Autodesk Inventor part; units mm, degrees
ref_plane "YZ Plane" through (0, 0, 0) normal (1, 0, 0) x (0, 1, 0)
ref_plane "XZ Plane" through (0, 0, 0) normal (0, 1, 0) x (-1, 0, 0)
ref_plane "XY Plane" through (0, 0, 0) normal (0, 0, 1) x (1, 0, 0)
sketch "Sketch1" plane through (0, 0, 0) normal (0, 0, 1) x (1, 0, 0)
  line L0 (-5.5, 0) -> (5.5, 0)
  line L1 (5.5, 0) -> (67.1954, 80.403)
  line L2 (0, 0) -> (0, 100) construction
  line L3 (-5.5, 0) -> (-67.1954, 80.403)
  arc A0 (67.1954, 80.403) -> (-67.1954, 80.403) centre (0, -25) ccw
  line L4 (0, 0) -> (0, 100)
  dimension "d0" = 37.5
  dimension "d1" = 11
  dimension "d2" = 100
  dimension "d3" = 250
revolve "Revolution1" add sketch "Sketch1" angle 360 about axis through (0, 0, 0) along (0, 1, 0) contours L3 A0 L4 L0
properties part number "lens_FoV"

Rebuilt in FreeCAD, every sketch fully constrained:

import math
import FreeCAD as App
import Part
import Sketcher
Q = App.Units.Quantity

doc = App.newDocument("Part")
body = doc.addObject("PartDesign::Body", "Body")

# Sketch on XY plane
sketch1 = body.newObject("Sketcher::SketchObject", "Sketch")
sketch1.AttachmentSupport = (doc.getObject("XY_Plane"), [""])
sketch1.MapMode = "FlatFace"
sketch1.addGeometry(Part.LineSegment(App.Vector(-67, 80, 0), App.Vector(-6, 0, 0)), False)
sketch1.addGeometry(Part.LineSegment(App.Vector(-6, 0, 0), App.Vector(0, 0, 0)), False)
sketch1.addGeometry(Part.LineSegment(App.Vector(0, 0, 0), App.Vector(0, 100, 0)), False)
sketch1.addGeometry(Part.ArcOfCircle(Part.Circle(App.Vector(0, -25, 0), App.Vector(0, 0, 1), 125), math.radians(90), math.radians(123)), False)
sketch1.addConstraint(Sketcher.Constraint("Coincident", 0, 2, 1, 1))
sketch1.addConstraint(Sketcher.Constraint("Coincident", 1, 2, 2, 1))
sketch1.addConstraint(Sketcher.Constraint("Coincident", 2, 2, 3, 1))
sketch1.addConstraint(Sketcher.Constraint("Coincident", 3, 2, 0, 1))
sketch1.addConstraint(Sketcher.Constraint("Horizontal", 1))
sketch1.addConstraint(Sketcher.Constraint("Vertical", 2))
sketch1.addConstraint(Sketcher.Constraint("Coincident", 1, 2, -1, 1))
sketch1.addConstraint(Sketcher.Constraint("PointOnObject", 3, 3, -2))
sketch1.addConstraint(Sketcher.Constraint("Radius", 3, 125.0))
sketch1.addConstraint(Sketcher.Constraint("DistanceY", 2, 1, 2, 2, 100.0))
sketch1.addConstraint(Sketcher.Constraint("DistanceX", 1, 1, 1, 2, 5.5))
sketch1.addConstraint(Sketcher.Constraint("Angle", 0, Q("-52.5 deg")))
revolution = body.newObject("PartDesign::Revolution", "Revolution")
revolution.Profile = sketch1
revolution.ReferenceAxis = (sketch1, ["V_Axis"])
revolution.Angle = 360

doc.recompute()
